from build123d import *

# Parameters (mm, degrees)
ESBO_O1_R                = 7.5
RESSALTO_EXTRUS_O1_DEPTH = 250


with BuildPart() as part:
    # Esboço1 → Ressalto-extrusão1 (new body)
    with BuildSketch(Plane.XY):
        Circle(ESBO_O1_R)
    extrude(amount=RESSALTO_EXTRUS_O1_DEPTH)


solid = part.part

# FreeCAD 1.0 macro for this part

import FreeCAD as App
import Part
import Sketcher
from FreeCAD import Vector

doc = App.newDocument("Part")
body = doc.addObject("PartDesign::Body", "Body")

sketch1 = body.newObject("Sketcher::SketchObject", "Sketch")
sketch1.AttachmentSupport = (doc.getObject("XY_Plane"), [""])
sketch1.MapMode = "FlatFace"
sketch1.addGeometry(Part.Circle(Vector(0, 0, 0), Vector(0, 0, 1), 8), False)
sketch1.addConstraint([
    Sketcher.Constraint("Coincident", 0, 3, -1, 1),
    Sketcher.Constraint("Diameter", 0, 15.0),
])
pad1 = body.newObject("PartDesign::Pad", "Pad")
pad1.Profile = sketch1
pad1.Length = 250

doc.recompute()
